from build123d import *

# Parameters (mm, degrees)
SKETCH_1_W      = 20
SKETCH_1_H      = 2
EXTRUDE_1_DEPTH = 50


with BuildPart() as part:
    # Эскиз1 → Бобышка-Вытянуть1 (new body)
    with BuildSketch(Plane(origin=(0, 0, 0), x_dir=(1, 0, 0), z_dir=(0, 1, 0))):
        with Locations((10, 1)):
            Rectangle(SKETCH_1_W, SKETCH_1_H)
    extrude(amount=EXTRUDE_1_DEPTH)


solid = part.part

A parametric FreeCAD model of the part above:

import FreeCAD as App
import Part
import Sketcher

V = App.Vector
Q = App.Units.Quantity

doc = App.newDocument("Part")
body = doc.addObject("PartDesign::Body", "Body")

# Sketch on XZ plane
sketch1 = body.newObject("Sketcher::SketchObject", "Sketch")
sketch1.AttachmentSupport = (doc.getObject("XZ_Plane"), [""])
sketch1.MapMode = "FlatFace"
sketch1.addGeometry(Part.LineSegment(V(0, -2, 0), V(0, 0, 0)), False)
sketch1.addGeometry(Part.LineSegment(V(0, 0, 0), V(20, 0, 0)), False)
sketch1.addGeometry(Part.LineSegment(V(20, 0, 0), V(20, -2, 0)), False)
sketch1.addGeometry(Part.LineSegment(V(20, -2, 0), V(0, -2, 0)), False)
sketch1.addConstraint(Sketcher.Constraint("Coincident", 0, 2, 1, 1))
sketch1.addConstraint(Sketcher.Constraint("Coincident", 1, 2, 2, 1))
sketch1.addConstraint(Sketcher.Constraint("Coincident", 2, 2, 3, 1))
sketch1.addConstraint(Sketcher.Constraint("Coincident", 3, 2, 0, 1))
sketch1.addConstraint(Sketcher.Constraint("Vertical", 0))
sketch1.addConstraint(Sketcher.Constraint("Horizontal", 1))
sketch1.addConstraint(Sketcher.Constraint("Vertical", 2))
sketch1.addConstraint(Sketcher.Constraint("Horizontal", 3))
sketch1.addConstraint(Sketcher.Constraint("Coincident", 0, 2, -1, 1))
sketch1.addConstraint(Sketcher.Constraint("DistanceX", 1, 1, 1, 2, Q("20 mm")))
sketch1.addConstraint(Sketcher.Constraint("DistanceY", 0, 1, 0, 2, Q("2 mm")))
pad1 = body.newObject("PartDesign::Pad", "Pad")
pad1.Profile = sketch1
pad1.Length = 50
pad1.Reversed = True

doc.recompute()
